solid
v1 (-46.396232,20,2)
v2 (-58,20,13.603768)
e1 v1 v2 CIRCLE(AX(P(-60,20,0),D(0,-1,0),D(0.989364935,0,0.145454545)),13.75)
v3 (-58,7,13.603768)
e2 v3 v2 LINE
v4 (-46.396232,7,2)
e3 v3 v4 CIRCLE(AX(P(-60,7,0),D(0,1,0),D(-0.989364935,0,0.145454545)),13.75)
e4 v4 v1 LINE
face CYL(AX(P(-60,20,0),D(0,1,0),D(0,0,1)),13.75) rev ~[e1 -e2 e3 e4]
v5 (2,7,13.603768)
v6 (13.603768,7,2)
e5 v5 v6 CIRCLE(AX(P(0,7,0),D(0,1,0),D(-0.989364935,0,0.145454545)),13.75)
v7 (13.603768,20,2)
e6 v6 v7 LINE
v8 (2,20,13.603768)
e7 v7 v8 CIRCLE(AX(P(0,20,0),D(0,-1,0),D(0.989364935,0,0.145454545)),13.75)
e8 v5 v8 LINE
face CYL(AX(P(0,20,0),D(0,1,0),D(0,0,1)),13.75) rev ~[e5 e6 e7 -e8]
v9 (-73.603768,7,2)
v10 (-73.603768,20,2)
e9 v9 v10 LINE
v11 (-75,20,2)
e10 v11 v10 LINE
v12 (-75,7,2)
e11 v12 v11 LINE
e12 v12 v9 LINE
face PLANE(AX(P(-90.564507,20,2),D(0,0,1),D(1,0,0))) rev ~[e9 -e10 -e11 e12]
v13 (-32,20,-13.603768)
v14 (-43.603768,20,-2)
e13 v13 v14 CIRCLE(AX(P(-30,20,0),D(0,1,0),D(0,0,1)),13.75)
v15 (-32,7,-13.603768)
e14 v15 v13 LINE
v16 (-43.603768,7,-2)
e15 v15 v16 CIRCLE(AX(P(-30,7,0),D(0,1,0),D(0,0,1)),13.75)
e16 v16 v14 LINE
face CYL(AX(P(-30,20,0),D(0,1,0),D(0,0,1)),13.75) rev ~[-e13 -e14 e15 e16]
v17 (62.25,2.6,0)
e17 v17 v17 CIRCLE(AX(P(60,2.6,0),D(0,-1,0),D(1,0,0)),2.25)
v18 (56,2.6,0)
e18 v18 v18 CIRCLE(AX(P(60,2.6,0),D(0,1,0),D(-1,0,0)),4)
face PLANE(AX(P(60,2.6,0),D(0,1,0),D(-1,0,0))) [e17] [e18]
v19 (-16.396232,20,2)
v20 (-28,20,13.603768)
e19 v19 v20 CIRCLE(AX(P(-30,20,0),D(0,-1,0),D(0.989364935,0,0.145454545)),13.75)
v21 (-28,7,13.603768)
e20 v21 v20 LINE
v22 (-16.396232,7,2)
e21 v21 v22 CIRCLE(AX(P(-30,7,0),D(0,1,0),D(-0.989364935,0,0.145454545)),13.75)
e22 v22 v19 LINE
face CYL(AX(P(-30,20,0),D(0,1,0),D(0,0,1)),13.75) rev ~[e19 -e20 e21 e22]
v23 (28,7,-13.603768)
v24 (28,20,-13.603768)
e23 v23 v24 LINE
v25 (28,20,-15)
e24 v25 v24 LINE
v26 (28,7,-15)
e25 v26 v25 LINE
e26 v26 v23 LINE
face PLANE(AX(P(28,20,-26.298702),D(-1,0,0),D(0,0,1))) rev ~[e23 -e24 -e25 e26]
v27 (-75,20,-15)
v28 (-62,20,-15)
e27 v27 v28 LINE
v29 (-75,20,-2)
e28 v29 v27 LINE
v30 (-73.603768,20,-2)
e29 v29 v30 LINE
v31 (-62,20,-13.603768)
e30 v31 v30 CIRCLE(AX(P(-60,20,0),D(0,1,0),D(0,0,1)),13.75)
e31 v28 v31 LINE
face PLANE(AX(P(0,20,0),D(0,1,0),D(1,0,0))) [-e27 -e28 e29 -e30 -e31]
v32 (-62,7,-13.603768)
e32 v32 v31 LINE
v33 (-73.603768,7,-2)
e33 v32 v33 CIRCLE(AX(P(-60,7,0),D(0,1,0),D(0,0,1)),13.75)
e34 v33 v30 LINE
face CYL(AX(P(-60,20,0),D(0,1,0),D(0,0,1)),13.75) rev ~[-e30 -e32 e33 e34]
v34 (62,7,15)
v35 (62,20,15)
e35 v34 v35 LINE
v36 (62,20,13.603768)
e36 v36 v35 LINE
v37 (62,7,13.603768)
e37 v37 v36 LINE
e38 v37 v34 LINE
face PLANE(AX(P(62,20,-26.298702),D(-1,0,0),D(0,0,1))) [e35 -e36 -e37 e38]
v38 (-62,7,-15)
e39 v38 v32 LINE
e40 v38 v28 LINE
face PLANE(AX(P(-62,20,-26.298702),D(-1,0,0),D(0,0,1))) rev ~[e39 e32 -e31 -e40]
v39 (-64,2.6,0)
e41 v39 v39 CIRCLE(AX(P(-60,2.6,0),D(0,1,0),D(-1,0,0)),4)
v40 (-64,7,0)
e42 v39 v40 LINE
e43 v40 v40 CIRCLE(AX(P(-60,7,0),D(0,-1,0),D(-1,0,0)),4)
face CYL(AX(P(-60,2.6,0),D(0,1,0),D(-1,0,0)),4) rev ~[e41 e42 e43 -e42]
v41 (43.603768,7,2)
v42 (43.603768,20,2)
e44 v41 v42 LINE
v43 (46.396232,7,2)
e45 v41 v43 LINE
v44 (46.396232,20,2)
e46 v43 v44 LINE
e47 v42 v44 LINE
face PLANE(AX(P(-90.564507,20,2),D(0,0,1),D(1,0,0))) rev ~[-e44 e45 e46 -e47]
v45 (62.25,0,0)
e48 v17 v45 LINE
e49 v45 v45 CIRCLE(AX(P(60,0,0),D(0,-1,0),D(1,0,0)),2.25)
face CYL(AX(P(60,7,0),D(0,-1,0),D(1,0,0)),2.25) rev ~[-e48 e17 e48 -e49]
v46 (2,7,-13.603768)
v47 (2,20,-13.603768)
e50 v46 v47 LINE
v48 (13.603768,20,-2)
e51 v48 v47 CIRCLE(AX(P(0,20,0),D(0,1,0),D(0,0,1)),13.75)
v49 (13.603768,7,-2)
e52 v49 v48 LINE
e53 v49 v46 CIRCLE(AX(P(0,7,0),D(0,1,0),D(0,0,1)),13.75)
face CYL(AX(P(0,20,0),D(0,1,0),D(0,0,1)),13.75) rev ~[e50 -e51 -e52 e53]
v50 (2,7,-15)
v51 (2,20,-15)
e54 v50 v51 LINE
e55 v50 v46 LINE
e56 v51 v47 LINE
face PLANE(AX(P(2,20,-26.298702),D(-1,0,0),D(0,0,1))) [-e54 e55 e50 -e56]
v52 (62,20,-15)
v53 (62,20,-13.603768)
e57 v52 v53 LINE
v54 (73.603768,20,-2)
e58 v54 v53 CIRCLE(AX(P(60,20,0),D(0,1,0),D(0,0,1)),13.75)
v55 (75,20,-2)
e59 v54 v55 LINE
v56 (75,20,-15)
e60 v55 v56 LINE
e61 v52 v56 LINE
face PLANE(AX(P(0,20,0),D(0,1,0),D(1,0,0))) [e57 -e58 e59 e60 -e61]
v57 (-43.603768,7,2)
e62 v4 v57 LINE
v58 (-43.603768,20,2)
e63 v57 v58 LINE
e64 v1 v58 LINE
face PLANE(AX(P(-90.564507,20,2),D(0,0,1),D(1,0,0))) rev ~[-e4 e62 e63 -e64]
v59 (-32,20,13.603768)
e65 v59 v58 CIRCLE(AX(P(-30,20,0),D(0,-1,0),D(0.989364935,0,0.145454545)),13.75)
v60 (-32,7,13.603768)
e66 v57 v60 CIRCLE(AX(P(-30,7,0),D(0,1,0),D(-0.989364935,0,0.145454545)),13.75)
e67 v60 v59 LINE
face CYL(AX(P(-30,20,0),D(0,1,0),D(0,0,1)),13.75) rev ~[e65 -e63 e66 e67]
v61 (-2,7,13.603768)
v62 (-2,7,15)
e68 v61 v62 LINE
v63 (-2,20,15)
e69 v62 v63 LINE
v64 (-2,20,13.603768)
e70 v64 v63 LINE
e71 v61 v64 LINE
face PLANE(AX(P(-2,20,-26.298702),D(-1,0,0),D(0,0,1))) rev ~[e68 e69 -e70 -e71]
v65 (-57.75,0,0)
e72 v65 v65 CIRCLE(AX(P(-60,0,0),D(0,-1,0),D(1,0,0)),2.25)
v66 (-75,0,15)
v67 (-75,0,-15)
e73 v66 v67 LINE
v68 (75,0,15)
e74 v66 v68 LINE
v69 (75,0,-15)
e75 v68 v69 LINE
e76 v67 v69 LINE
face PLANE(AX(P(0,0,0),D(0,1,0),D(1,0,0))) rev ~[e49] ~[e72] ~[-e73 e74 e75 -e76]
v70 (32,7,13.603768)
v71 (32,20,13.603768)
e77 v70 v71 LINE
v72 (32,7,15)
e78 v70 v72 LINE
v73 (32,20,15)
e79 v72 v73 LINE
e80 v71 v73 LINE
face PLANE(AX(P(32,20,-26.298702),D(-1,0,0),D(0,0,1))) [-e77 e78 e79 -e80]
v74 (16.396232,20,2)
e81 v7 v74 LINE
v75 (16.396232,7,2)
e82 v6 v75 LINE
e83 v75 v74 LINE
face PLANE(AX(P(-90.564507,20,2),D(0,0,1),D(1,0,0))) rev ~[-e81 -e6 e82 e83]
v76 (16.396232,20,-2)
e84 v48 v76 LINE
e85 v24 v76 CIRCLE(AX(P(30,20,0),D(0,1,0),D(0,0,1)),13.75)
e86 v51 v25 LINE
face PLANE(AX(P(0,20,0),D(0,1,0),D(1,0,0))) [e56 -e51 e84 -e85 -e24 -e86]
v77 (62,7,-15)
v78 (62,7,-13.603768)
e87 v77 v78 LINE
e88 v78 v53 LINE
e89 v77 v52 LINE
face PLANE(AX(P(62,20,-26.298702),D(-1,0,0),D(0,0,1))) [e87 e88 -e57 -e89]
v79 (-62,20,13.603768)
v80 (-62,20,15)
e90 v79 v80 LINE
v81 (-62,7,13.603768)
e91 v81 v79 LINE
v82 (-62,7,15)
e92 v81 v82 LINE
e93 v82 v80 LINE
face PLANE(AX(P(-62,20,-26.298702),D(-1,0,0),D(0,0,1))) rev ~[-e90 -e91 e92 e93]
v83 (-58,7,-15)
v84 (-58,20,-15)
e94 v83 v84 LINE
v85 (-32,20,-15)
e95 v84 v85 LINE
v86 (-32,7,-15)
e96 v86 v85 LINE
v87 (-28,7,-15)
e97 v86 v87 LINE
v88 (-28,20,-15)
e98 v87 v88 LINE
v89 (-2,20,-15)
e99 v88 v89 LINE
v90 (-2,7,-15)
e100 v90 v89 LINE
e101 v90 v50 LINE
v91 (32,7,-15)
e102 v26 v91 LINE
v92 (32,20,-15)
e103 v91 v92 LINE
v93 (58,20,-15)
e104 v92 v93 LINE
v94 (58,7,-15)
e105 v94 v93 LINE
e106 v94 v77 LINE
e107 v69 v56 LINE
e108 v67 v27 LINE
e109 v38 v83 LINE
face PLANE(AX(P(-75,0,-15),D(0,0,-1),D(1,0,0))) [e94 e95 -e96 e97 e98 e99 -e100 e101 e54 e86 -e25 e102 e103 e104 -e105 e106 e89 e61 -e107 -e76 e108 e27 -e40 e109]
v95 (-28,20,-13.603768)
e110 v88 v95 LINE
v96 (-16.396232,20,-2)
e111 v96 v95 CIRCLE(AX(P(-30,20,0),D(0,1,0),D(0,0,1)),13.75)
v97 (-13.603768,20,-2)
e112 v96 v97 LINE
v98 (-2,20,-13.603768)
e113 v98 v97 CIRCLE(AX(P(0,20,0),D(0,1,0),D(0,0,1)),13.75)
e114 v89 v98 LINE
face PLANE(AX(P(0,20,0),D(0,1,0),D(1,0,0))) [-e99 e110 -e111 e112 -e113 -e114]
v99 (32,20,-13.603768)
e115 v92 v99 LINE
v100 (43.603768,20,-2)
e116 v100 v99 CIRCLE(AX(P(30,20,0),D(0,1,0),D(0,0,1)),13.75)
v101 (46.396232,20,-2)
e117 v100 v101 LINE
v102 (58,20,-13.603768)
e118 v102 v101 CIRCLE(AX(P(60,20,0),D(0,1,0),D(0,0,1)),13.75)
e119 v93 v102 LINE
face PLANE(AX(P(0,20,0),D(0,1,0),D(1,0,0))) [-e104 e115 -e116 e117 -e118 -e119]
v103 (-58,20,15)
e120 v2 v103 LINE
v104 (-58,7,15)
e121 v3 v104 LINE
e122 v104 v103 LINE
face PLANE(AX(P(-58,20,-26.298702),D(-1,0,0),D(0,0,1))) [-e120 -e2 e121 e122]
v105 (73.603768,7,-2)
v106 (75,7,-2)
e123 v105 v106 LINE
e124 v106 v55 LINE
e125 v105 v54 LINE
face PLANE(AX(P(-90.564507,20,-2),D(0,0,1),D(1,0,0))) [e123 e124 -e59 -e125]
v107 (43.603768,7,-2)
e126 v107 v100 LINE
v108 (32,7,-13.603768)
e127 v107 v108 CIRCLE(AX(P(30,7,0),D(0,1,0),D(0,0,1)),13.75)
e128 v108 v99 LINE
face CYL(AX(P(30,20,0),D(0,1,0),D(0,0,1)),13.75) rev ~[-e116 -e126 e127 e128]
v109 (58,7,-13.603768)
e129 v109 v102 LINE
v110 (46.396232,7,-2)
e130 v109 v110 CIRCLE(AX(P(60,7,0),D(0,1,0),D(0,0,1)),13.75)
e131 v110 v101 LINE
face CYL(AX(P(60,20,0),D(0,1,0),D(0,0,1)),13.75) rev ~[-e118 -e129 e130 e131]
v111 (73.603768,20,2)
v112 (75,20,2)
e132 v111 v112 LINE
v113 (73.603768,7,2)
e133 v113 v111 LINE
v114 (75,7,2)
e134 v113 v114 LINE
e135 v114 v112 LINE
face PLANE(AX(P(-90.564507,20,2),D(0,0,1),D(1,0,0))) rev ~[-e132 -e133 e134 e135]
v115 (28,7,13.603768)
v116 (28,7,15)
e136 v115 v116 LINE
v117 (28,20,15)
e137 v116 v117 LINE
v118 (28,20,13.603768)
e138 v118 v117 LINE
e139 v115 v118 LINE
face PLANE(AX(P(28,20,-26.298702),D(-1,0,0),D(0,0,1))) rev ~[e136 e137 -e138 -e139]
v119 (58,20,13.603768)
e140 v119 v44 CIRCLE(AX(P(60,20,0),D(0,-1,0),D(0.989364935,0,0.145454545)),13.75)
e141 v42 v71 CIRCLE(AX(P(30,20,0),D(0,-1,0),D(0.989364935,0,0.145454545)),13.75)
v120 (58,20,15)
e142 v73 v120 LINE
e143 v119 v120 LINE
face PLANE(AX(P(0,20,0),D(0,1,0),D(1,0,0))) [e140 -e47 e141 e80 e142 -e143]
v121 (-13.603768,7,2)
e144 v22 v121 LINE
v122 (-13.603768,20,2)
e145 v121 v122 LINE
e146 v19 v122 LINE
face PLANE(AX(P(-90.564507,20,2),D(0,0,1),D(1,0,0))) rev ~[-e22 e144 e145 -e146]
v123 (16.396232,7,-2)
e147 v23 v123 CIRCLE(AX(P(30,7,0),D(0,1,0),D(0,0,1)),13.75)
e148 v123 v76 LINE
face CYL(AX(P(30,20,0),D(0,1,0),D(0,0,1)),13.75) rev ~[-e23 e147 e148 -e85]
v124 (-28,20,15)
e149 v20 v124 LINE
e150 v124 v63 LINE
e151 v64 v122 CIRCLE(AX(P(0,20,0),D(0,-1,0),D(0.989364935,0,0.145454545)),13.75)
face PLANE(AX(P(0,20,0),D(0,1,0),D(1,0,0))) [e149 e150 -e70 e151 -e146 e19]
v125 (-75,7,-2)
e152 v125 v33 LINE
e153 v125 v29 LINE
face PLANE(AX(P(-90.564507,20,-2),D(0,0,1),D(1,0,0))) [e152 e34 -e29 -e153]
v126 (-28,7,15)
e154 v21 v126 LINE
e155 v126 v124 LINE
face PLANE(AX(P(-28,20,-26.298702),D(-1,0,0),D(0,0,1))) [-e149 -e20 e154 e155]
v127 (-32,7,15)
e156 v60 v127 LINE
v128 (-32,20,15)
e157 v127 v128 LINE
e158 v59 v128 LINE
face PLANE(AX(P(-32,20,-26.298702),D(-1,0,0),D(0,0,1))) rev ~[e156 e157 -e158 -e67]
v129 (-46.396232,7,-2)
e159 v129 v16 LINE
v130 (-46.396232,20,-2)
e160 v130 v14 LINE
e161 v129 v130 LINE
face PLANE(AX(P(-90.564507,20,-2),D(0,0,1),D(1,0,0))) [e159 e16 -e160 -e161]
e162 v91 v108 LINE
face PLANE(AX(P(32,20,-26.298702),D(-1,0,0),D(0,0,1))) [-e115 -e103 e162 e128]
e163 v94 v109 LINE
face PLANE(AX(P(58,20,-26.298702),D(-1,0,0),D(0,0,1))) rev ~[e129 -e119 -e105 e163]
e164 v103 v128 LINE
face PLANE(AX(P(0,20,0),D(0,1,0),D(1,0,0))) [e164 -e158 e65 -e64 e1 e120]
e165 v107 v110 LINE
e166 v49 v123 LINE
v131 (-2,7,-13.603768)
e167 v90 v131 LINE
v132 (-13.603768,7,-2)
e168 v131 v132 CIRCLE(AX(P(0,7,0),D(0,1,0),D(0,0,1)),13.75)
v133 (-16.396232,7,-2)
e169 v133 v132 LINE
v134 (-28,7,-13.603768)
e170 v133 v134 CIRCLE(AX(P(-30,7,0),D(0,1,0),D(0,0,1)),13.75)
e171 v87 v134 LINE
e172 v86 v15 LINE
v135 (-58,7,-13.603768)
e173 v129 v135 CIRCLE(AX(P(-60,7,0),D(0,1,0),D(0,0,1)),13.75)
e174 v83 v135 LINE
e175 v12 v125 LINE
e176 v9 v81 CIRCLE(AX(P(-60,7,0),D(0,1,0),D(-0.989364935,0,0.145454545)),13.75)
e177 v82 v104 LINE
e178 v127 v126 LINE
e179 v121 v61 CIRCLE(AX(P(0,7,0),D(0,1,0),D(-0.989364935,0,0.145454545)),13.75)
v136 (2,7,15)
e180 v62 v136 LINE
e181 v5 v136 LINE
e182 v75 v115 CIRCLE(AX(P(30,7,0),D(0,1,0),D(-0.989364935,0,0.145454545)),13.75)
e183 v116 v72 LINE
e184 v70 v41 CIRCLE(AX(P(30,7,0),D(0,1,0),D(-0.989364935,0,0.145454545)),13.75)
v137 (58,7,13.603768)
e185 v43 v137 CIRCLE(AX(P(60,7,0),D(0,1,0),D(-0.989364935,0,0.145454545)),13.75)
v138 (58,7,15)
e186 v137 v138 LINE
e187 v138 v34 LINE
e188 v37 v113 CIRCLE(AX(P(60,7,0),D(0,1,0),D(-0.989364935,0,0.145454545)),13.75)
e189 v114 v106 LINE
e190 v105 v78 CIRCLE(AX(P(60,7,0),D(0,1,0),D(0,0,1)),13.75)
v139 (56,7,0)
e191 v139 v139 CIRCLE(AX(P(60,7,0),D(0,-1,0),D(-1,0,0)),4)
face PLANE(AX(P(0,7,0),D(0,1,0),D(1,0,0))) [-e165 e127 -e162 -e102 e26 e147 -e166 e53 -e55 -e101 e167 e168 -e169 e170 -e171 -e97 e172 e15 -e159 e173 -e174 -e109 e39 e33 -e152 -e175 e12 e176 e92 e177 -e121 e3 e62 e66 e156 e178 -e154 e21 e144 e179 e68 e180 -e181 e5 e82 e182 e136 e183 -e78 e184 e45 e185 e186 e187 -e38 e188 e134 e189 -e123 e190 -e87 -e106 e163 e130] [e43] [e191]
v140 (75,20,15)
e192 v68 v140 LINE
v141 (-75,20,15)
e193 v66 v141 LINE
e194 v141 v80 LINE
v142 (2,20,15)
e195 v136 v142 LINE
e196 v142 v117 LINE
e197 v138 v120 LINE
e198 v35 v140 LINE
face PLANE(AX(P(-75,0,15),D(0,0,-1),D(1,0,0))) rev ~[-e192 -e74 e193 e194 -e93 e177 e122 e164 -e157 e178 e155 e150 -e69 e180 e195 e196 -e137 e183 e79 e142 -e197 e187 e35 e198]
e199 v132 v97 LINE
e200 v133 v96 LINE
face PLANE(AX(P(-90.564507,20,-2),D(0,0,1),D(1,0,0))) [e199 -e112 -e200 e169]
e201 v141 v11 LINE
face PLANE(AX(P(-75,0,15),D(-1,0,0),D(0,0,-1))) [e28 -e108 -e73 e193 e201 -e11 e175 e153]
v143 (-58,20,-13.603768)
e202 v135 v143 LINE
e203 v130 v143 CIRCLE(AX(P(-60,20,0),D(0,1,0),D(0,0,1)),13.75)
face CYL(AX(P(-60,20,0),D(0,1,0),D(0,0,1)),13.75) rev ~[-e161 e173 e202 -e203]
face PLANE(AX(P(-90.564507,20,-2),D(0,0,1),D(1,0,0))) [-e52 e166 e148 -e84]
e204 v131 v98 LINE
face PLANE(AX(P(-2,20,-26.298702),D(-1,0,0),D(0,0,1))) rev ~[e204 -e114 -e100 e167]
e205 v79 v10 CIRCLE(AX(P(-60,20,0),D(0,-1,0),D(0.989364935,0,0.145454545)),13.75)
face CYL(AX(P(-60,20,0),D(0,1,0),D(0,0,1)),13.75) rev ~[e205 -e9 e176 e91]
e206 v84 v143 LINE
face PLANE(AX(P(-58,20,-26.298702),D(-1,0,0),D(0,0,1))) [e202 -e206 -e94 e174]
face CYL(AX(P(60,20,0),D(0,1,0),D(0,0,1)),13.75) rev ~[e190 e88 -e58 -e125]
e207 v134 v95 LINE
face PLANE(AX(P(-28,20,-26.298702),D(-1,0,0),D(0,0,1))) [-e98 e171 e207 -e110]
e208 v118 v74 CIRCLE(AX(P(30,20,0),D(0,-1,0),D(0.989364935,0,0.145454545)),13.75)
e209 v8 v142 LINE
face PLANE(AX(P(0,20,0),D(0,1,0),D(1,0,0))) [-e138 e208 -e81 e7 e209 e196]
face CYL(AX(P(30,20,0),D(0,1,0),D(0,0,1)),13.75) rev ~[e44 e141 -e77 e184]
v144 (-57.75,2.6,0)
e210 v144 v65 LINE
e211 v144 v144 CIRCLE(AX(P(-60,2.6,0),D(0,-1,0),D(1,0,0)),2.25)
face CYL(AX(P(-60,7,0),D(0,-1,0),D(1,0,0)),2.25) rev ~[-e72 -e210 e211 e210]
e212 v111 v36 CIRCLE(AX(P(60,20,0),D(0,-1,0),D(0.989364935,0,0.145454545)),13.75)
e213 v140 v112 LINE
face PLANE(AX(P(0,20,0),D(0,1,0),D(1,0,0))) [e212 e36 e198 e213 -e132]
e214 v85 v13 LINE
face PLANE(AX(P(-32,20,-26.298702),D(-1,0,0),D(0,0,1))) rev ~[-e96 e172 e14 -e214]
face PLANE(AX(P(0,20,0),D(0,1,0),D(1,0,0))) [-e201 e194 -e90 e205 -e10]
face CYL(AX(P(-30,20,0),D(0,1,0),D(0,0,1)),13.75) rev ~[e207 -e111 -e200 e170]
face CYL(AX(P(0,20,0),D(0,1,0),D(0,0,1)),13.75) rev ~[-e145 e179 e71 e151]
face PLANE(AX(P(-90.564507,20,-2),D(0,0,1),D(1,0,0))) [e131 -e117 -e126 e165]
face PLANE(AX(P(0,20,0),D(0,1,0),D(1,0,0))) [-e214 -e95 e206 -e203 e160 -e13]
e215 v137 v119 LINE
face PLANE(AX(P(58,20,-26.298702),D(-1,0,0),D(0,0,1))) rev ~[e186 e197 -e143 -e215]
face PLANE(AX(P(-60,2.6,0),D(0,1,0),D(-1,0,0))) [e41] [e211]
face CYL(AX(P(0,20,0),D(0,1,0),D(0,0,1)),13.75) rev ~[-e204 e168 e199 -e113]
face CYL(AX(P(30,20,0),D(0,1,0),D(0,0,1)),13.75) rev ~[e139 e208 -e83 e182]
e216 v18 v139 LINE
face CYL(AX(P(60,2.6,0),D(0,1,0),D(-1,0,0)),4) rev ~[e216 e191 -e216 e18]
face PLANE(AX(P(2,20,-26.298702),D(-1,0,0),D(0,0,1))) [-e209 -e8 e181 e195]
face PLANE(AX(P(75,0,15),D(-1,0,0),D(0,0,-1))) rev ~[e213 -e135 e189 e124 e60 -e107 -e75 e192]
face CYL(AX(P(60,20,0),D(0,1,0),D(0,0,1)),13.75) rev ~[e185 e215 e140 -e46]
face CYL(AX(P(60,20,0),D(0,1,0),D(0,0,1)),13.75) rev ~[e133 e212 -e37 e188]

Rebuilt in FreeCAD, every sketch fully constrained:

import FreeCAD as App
import Part
import Sketcher
from FreeCAD import Vector
Q = App.Units.Quantity

doc = App.newDocument("Part")
body = doc.addObject("PartDesign::Body", "Body")

sketch1 = body.newObject("Sketcher::SketchObject", "Sketch")
sketch1.AttachmentSupport = (doc.getObject("XZ_Plane"), [""])
sketch1.MapMode = "FlatFace"
sketch1.addGeometry([
    Part.LineSegment(Vector(-75, -15, 0), Vector(-75, 15, 0)),
    Part.LineSegment(Vector(-75, 15, 0), Vector(75, 15, 0)),
    Part.LineSegment(Vector(75, 15, 0), Vector(75, -15, 0)),
    Part.LineSegment(Vector(75, -15, 0), Vector(-75, -15, 0)),
], False)
sketch1.addConstraint([
    Sketcher.Constraint("Coincident", 0, 2, 1, 1),
    Sketcher.Constraint("Coincident", 1, 2, 2, 1),
    Sketcher.Constraint("Coincident", 2, 2, 3, 1),
    Sketcher.Constraint("Coincident", 3, 2, 0, 1),
    Sketcher.Constraint("Vertical", 0),
    Sketcher.Constraint("Horizontal", 1),
    Sketcher.Constraint("Vertical", 2),
    Sketcher.Constraint("Horizontal", 3),
    Sketcher.Constraint("Symmetric", 0, 2, 2, 2, -1, 1),
    Sketcher.Constraint("DistanceX", 1, 1, 1, 2, Q("150 mm")),
    Sketcher.Constraint("DistanceY", 0, 1, 0, 2, Q("30 mm")),
])
pad1 = body.newObject("PartDesign::Pad", "Pad")
pad1.Profile = sketch1
pad1.Length = 20
pad1.Reversed = True

sketch2 = body.newObject("Sketcher::SketchObject", "Sketch001")
sketch2.AttachmentSupport = (doc.getObject("XZ_Plane"), [""])
sketch2.MapMode = "FlatFace"
sketch2.AttachmentOffset = App.Placement(Vector(0, 0, -20), App.Rotation())
sketch2.addGeometry(Part.Circle(Vector(-60, 0, 0), Vector(0, 0, 1), 14), False)
sketch2.addConstraint([
    Sketcher.Constraint("PointOnObject", 0, 3, -1),
    Sketcher.Constraint("Diameter", 0, Q("27.5 mm")),
    Sketcher.Constraint("DistanceX", 0, 3, -1, 1, Q("60 mm")),
])
pocket1 = body.newObject("PartDesign::Pocket", "Pocket")
pocket1.Profile = sketch2
pocket1.Length = 13
pocket1.Reversed = True
doc.recompute()

linearpattern = body.newObject("PartDesign::LinearPattern", "LinearPattern")
linearpattern.Originals = [pocket1]
linearpattern.Direction = (doc.getObject("X_Axis"), [""])
linearpattern.Mode = "offset"
linearpattern.Offset = 30
linearpattern.Occurrences = 5
body.Tip = linearpattern

sketch3 = body.newObject("Sketcher::SketchObject", "Sketch002")
sketch3.AttachmentSupport = (doc.getObject("XZ_Plane"), [""])
sketch3.MapMode = "FlatFace"
sketch3.AttachmentOffset = App.Placement(Vector(0, 0, -7), App.Rotation())
sketch3.addGeometry(Part.Circle(Vector(-60, 0, 0), Vector(0, 0, 1), 2.2), False)
sketch3.addConstraint([
    Sketcher.Constraint("PointOnObject", 0, 3, -1),
    Sketcher.Constraint("Diameter", 0, Q("4.5 mm")),
    Sketcher.Constraint("DistanceX", 0, 3, -1, 1, Q("60 mm")),
])
doc.recompute()
hole = body.newObject("PartDesign::Hole", "Hole")
hole.Profile = sketch3
hole.ThreadType = "None"
hole.Diameter = 4.5
hole.DepthType = "ThroughAll"
hole.HoleCutType = "Counterbore"
hole.HoleCutDiameter = 8
hole.HoleCutDepth = 4.4
hole.Reversed = True
doc.recompute()

linearpattern2 = body.newObject("PartDesign::LinearPattern", "LinearPattern001")
linearpattern2.Originals = [hole]
linearpattern2.Direction = (doc.getObject("X_Axis"), [""])
linearpattern2.Mode = "offset"
linearpattern2.Offset = 120
linearpattern2.Occurrences = 2
body.Tip = linearpattern2

sketch4 = body.newObject("Sketcher::SketchObject", "Sketch003")
sketch4.AttachmentSupport = (doc.getObject("XZ_Plane"), [""])
sketch4.MapMode = "FlatFace"
sketch4.AttachmentOffset = App.Placement(Vector(0, 0, -20), App.Rotation())
sketch4.addGeometry([
    Part.LineSegment(Vector(-90.6, -2, 0), Vector(-90.6, 2, 0)),
    Part.LineSegment(Vector(-90.6, 2, 0), Vector(90.6, 2, 0)),
    Part.LineSegment(Vector(90.6, 2, 0), Vector(90.6, -2, 0)),
    Part.LineSegment(Vector(90.6, -2, 0), Vector(-90.6, -2, 0)),
], False)
sketch4.addConstraint([
    Sketcher.Constraint("Coincident", 0, 2, 1, 1),
    Sketcher.Constraint("Coincident", 1, 2, 2, 1),
    Sketcher.Constraint("Coincident", 2, 2, 3, 1),
    Sketcher.Constraint("Coincident", 3, 2, 0, 1),
    Sketcher.Constraint("Vertical", 0),
    Sketcher.Constraint("Horizontal", 1),
    Sketcher.Constraint("Vertical", 2),
    Sketcher.Constraint("Horizontal", 3),
    Sketcher.Constraint("Symmetric", 0, 2, 2, 2, -1, 1),
    Sketcher.Constraint("DistanceY", 0, 1, 0, 2, Q("4 mm")),
    Sketcher.Constraint("DistanceX", 1, 1, 1, 2, Q("181.129014 mm")),
])
pocket2 = body.newObject("PartDesign::Pocket", "Pocket001")
pocket2.Profile = sketch4
pocket2.Length = 13
pocket2.Reversed = True

sketch5 = body.newObject("Sketcher::SketchObject", "Sketch004")
sketch5.AttachmentSupport = (doc.getObject("XZ_Plane"), [""])
sketch5.MapMode = "FlatFace"
sketch5.AttachmentOffset = App.Placement(Vector(0, 0, -20), App.Rotation())
sketch5.addGeometry([
    Part.LineSegment(Vector(-58, 23.7, 0), Vector(-58, -26.3, 0)),
    Part.LineSegment(Vector(-58, -26.3, 0), Vector(-62, -26.3, 0)),
    Part.LineSegment(Vector(-62, -26.3, 0), Vector(-62, 23.7, 0)),
    Part.LineSegment(Vector(-62, 23.7, 0), Vector(-58, 23.7, 0)),
], False)
sketch5.addConstraint([
    Sketcher.Constraint("Coincident", 0, 2, 1, 1),
    Sketcher.Constraint("Coincident", 1, 2, 2, 1),
    Sketcher.Constraint("Coincident", 2, 2, 3, 1),
    Sketcher.Constraint("Coincident", 3, 2, 0, 1),
    Sketcher.Constraint("Vertical", 0),
    Sketcher.Constraint("Horizontal", 1),
    Sketcher.Constraint("Vertical", 2),
    Sketcher.Constraint("Horizontal", 3),
    Sketcher.Constraint("DistanceX", 1, 2, 1, 1, Q("4 mm")),
    Sketcher.Constraint("DistanceY", 0, 2, 0, 1, Q("50 mm")),
    Sketcher.Constraint("DistanceX", 0, 2, -1, 1, Q("58 mm")),
    Sketcher.Constraint("DistanceY", 0, 2, -1, 1, Q("26.298702 mm")),
])
pocket3 = body.newObject("PartDesign::Pocket", "Pocket002")
pocket3.Profile = sketch5
pocket3.Length = 13
pocket3.Reversed = True
doc.recompute()

linearpattern3 = body.newObject("PartDesign::LinearPattern", "LinearPattern002")
linearpattern3.Originals = [pocket3]
linearpattern3.Direction = (doc.getObject("X_Axis"), [""])
linearpattern3.Mode = "offset"
linearpattern3.Offset = 30
linearpattern3.Occurrences = 5
body.Tip = linearpattern3

doc.recompute()
